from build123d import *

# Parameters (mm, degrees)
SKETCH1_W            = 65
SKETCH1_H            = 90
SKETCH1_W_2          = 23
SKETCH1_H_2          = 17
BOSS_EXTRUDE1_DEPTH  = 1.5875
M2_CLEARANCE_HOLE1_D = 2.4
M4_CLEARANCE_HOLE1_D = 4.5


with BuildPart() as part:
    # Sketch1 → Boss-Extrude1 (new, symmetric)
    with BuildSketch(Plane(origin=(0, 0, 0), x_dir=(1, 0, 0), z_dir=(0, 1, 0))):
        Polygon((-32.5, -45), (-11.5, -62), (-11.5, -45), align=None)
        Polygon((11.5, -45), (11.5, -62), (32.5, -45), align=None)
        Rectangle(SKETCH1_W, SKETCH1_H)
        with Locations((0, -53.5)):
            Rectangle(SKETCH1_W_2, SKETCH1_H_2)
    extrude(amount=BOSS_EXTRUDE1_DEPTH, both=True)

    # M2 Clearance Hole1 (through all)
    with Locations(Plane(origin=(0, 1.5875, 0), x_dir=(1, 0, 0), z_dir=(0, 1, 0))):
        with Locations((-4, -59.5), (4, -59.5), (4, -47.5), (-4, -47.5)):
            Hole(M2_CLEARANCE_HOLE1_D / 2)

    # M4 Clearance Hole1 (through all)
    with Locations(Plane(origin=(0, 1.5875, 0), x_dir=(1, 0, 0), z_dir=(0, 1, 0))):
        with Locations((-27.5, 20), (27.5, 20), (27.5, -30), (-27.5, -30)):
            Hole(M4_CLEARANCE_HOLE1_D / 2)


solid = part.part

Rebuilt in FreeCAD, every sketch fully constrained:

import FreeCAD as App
import Part
import Sketcher


def add_polygon(sketch, points):
    """Adds a closed chain of lines whose ends are joined by coincident constraints."""
    first, n = sketch.GeometryCount, len(points)
    for a, b in zip(points, points[1:] + points[:1]):
        sketch.addGeometry(Part.LineSegment(App.Vector(*a, 0), App.Vector(*b, 0)), False)
    for i in range(n):
        sketch.addConstraint(Sketcher.Constraint("Coincident", first + i, 2, first + (i + 1) % n, 1))

doc = App.newDocument("Part")
body = doc.addObject("PartDesign::Body", "Body")

# Sketch on XZ plane
sketch1 = body.newObject("Sketcher::SketchObject", "Sketch")
sketch1.AttachmentSupport = (doc.getObject("XZ_Plane"), [""])
sketch1.MapMode = "FlatFace"
add_polygon(sketch1, [(-32, 45), (-12, 62), (12, 62), (32, 45), (32, -45), (-32, -45)])  # lines 0-5
sketch1.addConstraint([
    Sketcher.Constraint("Horizontal", 1),
    Sketcher.Constraint("Vertical", 3),
    Sketcher.Constraint("Horizontal", 4),
    Sketcher.Constraint("Vertical", 5),
    Sketcher.Constraint("Symmetric", 2, 2, 4, 2, -1, 1),
    Sketcher.Constraint("Horizontal", 2, 2, 5, 2),
    Sketcher.Constraint("Equal", 0, 2),
    Sketcher.Constraint("DistanceX", 1, 1, 1, 2, 23.0),
    Sketcher.Constraint("DistanceX", 4, 2, 4, 1, 65.0),
    Sketcher.Constraint("DistanceY", 3, 2, 3, 1, 90.0),
    Sketcher.Constraint("DistanceY", -1, 1, 0, 2, 62.0),
])
pad1 = body.newObject("PartDesign::Pad", "Pad")
pad1.Profile = sketch1
pad1.Length = 3.175
pad1.Midplane = True

# Sketch on XZ plane
sketch2 = body.newObject("Sketcher::SketchObject", "Sketch001")
sketch2.AttachmentSupport = (doc.getObject("XZ_Plane"), [""])
sketch2.MapMode = "FlatFace"
sketch2.AttachmentOffset = App.Placement(App.Vector(0, 0, -1.5875), App.Rotation())
sketch2.addGeometry([
    Part.Circle(App.Vector(-4, 59.5, 0), App.Vector(0, 0, 1), 1.2),
    Part.Circle(App.Vector(4, 59.5, 0), App.Vector(0, 0, 1), 1.2),
    Part.Circle(App.Vector(4, 47.5, 0), App.Vector(0, 0, 1), 1.2),
    Part.Circle(App.Vector(-4, 47.5, 0), App.Vector(0, 0, 1), 1.2),
], False)
sketch2.addConstraint([
    Sketcher.Constraint("Equal", 0, 1),
    Sketcher.Constraint("Equal", 1, 2),
    Sketcher.Constraint("Equal", 2, 3),
    Sketcher.Constraint("Symmetric", 0, 3, 1, 3, -2),
    Sketcher.Constraint("Symmetric", 2, 3, 3, 3, -2),
    Sketcher.Constraint("Vertical", 1, 3, 2, 3),
    Sketcher.Constraint("Diameter", 0, 2.4),
    Sketcher.Constraint("DistanceX", 0, 3, -1, 1, 4.0),
    Sketcher.Constraint("DistanceY", 2, 3, 1, 3, 12.0),
    Sketcher.Constraint("DistanceY", -1, 1, 0, 3, 59.5),
])
doc.recompute()
hole = body.newObject("PartDesign::Hole", "Hole")
hole.Profile = sketch2
hole.ThreadType = "None"
hole.Diameter = 2.4
hole.DepthType = "ThroughAll"
hole.Reversed = True

# Sketch on XZ plane
sketch3 = body.newObject("Sketcher::SketchObject", "Sketch002")
sketch3.AttachmentSupport = (doc.getObject("XZ_Plane"), [""])
sketch3.MapMode = "FlatFace"
sketch3.AttachmentOffset = App.Placement(App.Vector(0, 0, -1.5875), App.Rotation())
sketch3.addGeometry([
    Part.Circle(App.Vector(-27.5, -20, 0), App.Vector(0, 0, 1), 2.2),
    Part.Circle(App.Vector(27.5, -20, 0), App.Vector(0, 0, 1), 2.2),
    Part.Circle(App.Vector(27.5, 30, 0), App.Vector(0, 0, 1), 2.2),
    Part.Circle(App.Vector(-27.5, 30, 0), App.Vector(0, 0, 1), 2.2),
], False)
sketch3.addConstraint([
    Sketcher.Constraint("Equal", 0, 1),
    Sketcher.Constraint("Equal", 1, 2),
    Sketcher.Constraint("Equal", 2, 3),
    Sketcher.Constraint("Symmetric", 0, 3, 1, 3, -2),
    Sketcher.Constraint("Symmetric", 2, 3, 3, 3, -2),
    Sketcher.Constraint("Vertical", 1, 3, 2, 3),
    Sketcher.Constraint("Diameter", 0, 4.5),
    Sketcher.Constraint("DistanceY", 0, 3, -1, 1, 20.0),
    Sketcher.Constraint("DistanceY", -1, 1, 2, 3, 30.0),
    Sketcher.Constraint("DistanceX", 0, 3, 1, 3, 55.0),
])
doc.recompute()
hole2 = body.newObject("PartDesign::Hole", "Hole001")
hole2.Profile = sketch3
hole2.ThreadType = "None"
hole2.Diameter = 4.5
hole2.DepthType = "ThroughAll"
hole2.Reversed = True

doc.recompute()
